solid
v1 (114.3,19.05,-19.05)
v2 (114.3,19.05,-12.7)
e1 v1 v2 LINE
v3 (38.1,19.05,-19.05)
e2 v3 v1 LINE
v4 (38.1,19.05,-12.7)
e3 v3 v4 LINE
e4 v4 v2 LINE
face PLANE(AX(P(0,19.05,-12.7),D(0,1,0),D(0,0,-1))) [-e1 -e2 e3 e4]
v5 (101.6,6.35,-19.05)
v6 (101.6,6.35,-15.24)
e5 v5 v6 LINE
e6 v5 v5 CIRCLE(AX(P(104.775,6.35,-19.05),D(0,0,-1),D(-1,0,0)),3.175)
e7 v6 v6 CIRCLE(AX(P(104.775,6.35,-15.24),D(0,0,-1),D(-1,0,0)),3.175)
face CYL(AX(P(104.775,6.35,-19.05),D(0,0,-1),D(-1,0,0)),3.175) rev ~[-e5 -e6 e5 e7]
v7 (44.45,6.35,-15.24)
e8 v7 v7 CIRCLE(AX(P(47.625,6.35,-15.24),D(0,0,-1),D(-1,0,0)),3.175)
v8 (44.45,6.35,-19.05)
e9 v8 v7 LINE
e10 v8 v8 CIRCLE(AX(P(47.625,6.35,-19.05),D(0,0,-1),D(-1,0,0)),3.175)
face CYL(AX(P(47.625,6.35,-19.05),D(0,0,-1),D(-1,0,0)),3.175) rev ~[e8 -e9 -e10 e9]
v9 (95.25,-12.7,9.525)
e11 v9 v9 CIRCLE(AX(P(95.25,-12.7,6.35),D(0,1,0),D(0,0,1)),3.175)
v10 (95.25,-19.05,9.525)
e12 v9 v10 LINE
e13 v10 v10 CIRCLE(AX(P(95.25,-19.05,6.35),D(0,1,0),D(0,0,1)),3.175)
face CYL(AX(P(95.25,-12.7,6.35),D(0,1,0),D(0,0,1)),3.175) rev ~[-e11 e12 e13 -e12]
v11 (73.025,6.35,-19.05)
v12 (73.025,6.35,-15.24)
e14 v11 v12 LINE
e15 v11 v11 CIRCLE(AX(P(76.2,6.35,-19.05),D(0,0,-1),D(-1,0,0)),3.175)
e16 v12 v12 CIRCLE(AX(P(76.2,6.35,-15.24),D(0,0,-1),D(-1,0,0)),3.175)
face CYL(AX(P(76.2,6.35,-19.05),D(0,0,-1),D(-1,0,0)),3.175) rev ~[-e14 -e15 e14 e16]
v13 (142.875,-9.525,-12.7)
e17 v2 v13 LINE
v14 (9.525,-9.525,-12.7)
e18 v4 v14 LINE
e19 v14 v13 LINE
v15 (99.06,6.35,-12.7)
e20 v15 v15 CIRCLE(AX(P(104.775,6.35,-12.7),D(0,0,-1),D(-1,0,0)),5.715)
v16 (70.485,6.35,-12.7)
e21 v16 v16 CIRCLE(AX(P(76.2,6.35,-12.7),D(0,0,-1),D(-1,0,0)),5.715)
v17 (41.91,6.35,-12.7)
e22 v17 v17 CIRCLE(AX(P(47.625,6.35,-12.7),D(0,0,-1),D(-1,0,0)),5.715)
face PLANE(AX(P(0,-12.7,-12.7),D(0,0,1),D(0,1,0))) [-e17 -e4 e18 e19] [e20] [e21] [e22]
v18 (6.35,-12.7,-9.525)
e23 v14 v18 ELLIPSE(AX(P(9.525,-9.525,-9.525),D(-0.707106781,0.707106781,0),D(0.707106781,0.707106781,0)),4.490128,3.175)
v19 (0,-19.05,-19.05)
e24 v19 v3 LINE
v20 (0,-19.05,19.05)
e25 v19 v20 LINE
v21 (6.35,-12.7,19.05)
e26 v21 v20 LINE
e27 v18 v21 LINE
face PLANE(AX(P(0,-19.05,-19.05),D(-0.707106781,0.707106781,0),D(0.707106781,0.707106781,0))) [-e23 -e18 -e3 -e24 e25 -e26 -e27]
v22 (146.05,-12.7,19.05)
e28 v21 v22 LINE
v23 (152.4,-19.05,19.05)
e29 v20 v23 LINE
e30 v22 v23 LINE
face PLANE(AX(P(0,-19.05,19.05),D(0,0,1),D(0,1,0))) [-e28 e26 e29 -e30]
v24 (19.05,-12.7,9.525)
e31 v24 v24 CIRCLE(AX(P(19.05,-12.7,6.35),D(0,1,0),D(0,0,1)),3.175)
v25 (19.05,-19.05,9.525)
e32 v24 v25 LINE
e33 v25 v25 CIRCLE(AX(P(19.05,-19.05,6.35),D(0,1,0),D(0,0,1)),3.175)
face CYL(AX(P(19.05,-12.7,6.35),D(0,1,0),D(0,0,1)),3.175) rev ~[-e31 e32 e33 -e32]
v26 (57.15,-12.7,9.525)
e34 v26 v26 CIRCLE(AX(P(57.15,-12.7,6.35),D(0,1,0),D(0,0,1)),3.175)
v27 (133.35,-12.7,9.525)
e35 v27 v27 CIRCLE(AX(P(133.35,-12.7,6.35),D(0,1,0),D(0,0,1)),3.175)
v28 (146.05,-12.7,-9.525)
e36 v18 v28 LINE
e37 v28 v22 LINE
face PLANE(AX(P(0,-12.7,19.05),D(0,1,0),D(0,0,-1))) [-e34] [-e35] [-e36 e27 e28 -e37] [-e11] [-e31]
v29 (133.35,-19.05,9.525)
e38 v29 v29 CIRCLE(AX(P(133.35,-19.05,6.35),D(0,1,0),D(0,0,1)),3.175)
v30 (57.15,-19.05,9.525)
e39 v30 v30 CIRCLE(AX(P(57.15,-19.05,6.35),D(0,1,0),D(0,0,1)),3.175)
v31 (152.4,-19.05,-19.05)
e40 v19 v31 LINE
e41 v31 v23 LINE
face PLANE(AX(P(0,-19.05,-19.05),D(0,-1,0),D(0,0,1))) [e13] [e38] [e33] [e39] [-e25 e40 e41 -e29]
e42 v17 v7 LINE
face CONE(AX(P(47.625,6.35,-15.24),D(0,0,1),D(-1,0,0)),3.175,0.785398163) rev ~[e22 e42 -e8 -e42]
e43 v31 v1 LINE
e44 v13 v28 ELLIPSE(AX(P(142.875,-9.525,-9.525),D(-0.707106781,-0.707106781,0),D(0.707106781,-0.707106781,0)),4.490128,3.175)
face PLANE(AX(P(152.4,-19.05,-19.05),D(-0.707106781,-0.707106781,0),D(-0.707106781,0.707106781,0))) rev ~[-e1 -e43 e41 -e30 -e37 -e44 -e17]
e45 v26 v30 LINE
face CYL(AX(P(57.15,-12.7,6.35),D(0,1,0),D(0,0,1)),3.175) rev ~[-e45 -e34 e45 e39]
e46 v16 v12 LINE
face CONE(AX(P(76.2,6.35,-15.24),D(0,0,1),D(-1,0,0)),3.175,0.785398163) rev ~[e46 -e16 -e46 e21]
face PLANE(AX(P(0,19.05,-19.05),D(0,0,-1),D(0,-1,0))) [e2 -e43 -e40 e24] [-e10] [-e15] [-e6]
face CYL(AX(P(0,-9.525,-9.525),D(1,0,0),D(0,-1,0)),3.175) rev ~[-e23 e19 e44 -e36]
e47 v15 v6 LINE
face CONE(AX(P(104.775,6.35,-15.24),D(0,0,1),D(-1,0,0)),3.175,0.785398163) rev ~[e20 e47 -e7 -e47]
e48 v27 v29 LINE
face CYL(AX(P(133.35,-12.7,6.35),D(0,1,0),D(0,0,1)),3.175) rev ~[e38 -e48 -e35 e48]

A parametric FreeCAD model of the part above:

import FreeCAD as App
import Part
import Sketcher

V = App.Vector
Q = App.Units.Quantity


def edges_at(feature, points):
    """Names of the edges that pass closest to the given points."""
    edges = feature.Shape.Edges
    near = lambda p: min(range(len(edges)), key=lambda i: edges[i].distToShape(Part.Vertex(*p))[0])
    return sorted({f"Edge{near(p) + 1}" for p in points})


def add_polygon(sketch, points):
    """Adds a closed chain of lines whose ends are joined by coincident constraints."""
    first, n = sketch.GeometryCount, len(points)
    for a, b in zip(points, points[1:] + points[:1]):
        sketch.addGeometry(Part.LineSegment(App.Vector(*a, 0), App.Vector(*b, 0)), False)
    for i in range(n):
        sketch.addConstraint(Sketcher.Constraint("Coincident", first + i, 2, first + (i + 1) % n, 1))

doc = App.newDocument("Part")
body = doc.addObject("PartDesign::Body", "Body")

# Sketch on YZ plane
sketch1 = body.newObject("Sketcher::SketchObject", "Sketch")
sketch1.AttachmentSupport = (doc.getObject("YZ_Plane"), [""])
sketch1.MapMode = "FlatFace"
add_polygon(sketch1, [(-19, 19), (-19, -19), (19, -19), (19, -13), (-13, -13), (-13, 19)])  # lines 0-5
sketch1.addConstraint(Sketcher.Constraint("Vertical", 0))
sketch1.addConstraint(Sketcher.Constraint("Horizontal", 1))
sketch1.addConstraint(Sketcher.Constraint("Vertical", 2))
sketch1.addConstraint(Sketcher.Constraint("Horizontal", 3))
sketch1.addConstraint(Sketcher.Constraint("Vertical", 4))
sketch1.addConstraint(Sketcher.Constraint("Horizontal", 5))
sketch1.addConstraint(Sketcher.Constraint("Symmetric", 1, 2, 5, 2, -1, 1))
sketch1.addConstraint(Sketcher.Constraint("Equal", 1, 0))
sketch1.addConstraint(Sketcher.Constraint("Equal", 5, 2))
sketch1.addConstraint(Sketcher.Constraint("DistanceX", 1, 1, 1, 2, Q("1.5 in")))
sketch1.addConstraint(Sketcher.Constraint("DistanceX", 3, 2, 3, 1, Q("1.25 in")))
pad1 = body.newObject("PartDesign::Pad", "Pad")
pad1.Profile = sketch1
pad1.Length = Q("6 in")
doc.recompute()

fillet = body.newObject("PartDesign::Fillet", "Fillet")
fillet.Base = (pad1, edges_at(pad1, [(76.2, -12.7, -12.7)]))
fillet.Radius = Q("0.125 in")

# Sketch on XY plane
sketch2 = body.newObject("Sketcher::SketchObject", "Sketch001")
sketch2.AttachmentSupport = (doc.getObject("XY_Plane"), [""])
sketch2.MapMode = "FlatFace"
sketch2.AttachmentOffset = App.Placement(V(0, 0, -0.75 * 25.4), App.Rotation())
sketch2.addGeometry(Part.Circle(V(104.8, 6.3, 0), V(0, 0, 1), 3.2), False)
sketch2.addGeometry(Part.Circle(V(76.2, 6.3, 0), V(0, 0, 1), 3.2), False)
sketch2.addGeometry(Part.Circle(V(47.6, 6.3, 0), V(0, 0, 1), 3.2), False)
sketch2.addConstraint(Sketcher.Constraint("Equal", 0, 1))
sketch2.addConstraint(Sketcher.Constraint("Equal", 1, 2))
sketch2.addConstraint(Sketcher.Constraint("Horizontal", 0, 3, 1, 3))
sketch2.addConstraint(Sketcher.Constraint("Horizontal", 1, 3, 2, 3))
sketch2.addConstraint(Sketcher.Constraint("Diameter", 0, Q("0.25 in")))
sketch2.addConstraint(Sketcher.Constraint("DistanceX", -1, 1, 1, 3, Q("3 in")))
sketch2.addConstraint(Sketcher.Constraint("DistanceY", -1, 1, 0, 3, Q("0.25 in")))
sketch2.addConstraint(Sketcher.Constraint("DistanceX", 2, 3, 0, 3, Q("2.25 in")))
sketch2.addConstraint(Sketcher.Constraint("DistanceX", -1, 1, 0, 3, Q("4.125 in")))
pocket1 = body.newObject("PartDesign::Pocket", "Pocket")
pocket1.Profile = sketch2
pocket1.Length = Q("6 in")
pocket1.Reversed = True
doc.recompute()

chamfer = body.newObject("PartDesign::Chamfer", "Chamfer")
chamfer.Base = (pocket1, edges_at(pocket1, [(50.8, 6.35, -12.7)]))
chamfer.Size = Q("0.1 in")
doc.recompute()

chamfer2 = body.newObject("PartDesign::Chamfer", "Chamfer001")
chamfer2.Base = (chamfer, edges_at(chamfer, [(107.95, 6.35, -12.7), (79.375, 6.35, -12.7)]))
chamfer2.Size = Q("0.1 in")

# Sketch on XZ plane
sketch3 = body.newObject("Sketcher::SketchObject", "Sketch002")
sketch3.AttachmentSupport = (doc.getObject("XZ_Plane"), [""])
sketch3.MapMode = "FlatFace"
sketch3.AttachmentOffset = App.Placement(V(0, 0, 0.5 * 25.4), App.Rotation())
sketch3.addGeometry(Part.Circle(V(19.1, 6.3, 0), V(0, 0, 1), 3.2), False)
sketch3.addGeometry(Part.Circle(V(57.1, 6.3, 0), V(0, 0, 1), 3.2), False)
sketch3.addGeometry(Part.Circle(V(95.2, 6.3, 0), V(0, 0, 1), 3.2), False)
sketch3.addGeometry(Part.Circle(V(133.3, 6.3, 0), V(0, 0, 1), 3.2), False)
sketch3.addConstraint(Sketcher.Constraint("Equal", 0, 1))
sketch3.addConstraint(Sketcher.Constraint("Equal", 1, 2))
sketch3.addConstraint(Sketcher.Constraint("Equal", 2, 3))
sketch3.addConstraint(Sketcher.Constraint("Horizontal", 0, 3, 1, 3))
sketch3.addConstraint(Sketcher.Constraint("Horizontal", 1, 3, 2, 3))
sketch3.addConstraint(Sketcher.Constraint("Horizontal", 2, 3, 3, 3))
sketch3.addConstraint(Sketcher.Constraint("Diameter", 0, Q("0.25 in")))
sketch3.addConstraint(Sketcher.Constraint("DistanceX", 0, 3, 2, 3, Q("3 in")))
sketch3.addConstraint(Sketcher.Constraint("DistanceX", 1, 3, 3, 3, Q("3 in")))
sketch3.addConstraint(Sketcher.Constraint("DistanceX", 0, 3, 1, 3, Q("1.5 in")))
sketch3.addConstraint(Sketcher.Constraint("DistanceX", -1, 1, 0, 3, Q("0.75 in")))
sketch3.addConstraint(Sketcher.Constraint("DistanceY", -1, 1, 0, 3, Q("0.25 in")))
pocket2 = body.newObject("PartDesign::Pocket", "Pocket001")
pocket2.Profile = sketch3
pocket2.Length = Q("6 in")
pocket2.Reversed = True

# Sketch on XY plane
sketch4 = body.newObject("Sketcher::SketchObject", "Sketch003")
sketch4.AttachmentSupport = (doc.getObject("XY_Plane"), [""])
sketch4.MapMode = "FlatFace"
sketch4.AttachmentOffset = App.Placement(V(0, 0, -0.75 * 25.4), App.Rotation())
add_polygon(sketch4, [(152, -19), (114, 19), (152, 19)])  # lines 0-2
add_polygon(sketch4, [(38, 19), (0, -19), (0, 19)])  # lines 3-5
sketch4.addConstraint(Sketcher.Constraint("Horizontal", 1))
sketch4.addConstraint(Sketcher.Constraint("Vertical", 2))
sketch4.addConstraint(Sketcher.Constraint("Vertical", 4))
sketch4.addConstraint(Sketcher.Constraint("Horizontal", 5))
sketch4.addConstraint(Sketcher.Constraint("Symmetric", 3, 2, 4, 2, -1, 1))
sketch4.addConstraint(Sketcher.Constraint("Perpendicular", 0, 3))
sketch4.addConstraint(Sketcher.Constraint("Horizontal", 2, 2, 3, 2))
sketch4.addConstraint(Sketcher.Constraint("Horizontal", 1, 2, 4, 2))
sketch4.addConstraint(Sketcher.Constraint("Equal", 1, 5))
sketch4.addConstraint(Sketcher.Constraint("DistanceX", 1, 1, 1, 2, Q("1.5 in")))
sketch4.addConstraint(Sketcher.Constraint("DistanceX", -1, 1, 1, 2, Q("6 in")))
pocket3 = body.newObject("PartDesign::Pocket", "Pocket002")
pocket3.Profile = sketch4
pocket3.Length = Q("6 in")
pocket3.Reversed = True

doc.recompute()
